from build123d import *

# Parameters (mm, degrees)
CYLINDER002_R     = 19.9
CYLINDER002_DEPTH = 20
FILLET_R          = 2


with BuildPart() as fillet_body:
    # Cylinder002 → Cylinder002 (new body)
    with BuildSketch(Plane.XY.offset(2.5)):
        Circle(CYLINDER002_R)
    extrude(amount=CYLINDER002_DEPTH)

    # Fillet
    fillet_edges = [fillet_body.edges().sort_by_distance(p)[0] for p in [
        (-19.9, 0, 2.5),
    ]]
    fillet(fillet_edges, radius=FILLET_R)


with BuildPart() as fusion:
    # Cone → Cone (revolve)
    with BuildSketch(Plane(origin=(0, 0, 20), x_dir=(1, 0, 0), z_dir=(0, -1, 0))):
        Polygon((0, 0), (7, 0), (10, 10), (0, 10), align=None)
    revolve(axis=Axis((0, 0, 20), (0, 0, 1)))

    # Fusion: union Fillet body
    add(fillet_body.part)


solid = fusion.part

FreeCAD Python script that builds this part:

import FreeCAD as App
import Part
import Sketcher
Q = App.Units.Quantity


def edges_at(feature, points):
    """Names of the edges that pass closest to the given points."""
    edges = feature.Shape.Edges
    near = lambda p: min(range(len(edges)), key=lambda i: edges[i].distToShape(Part.Vertex(*p))[0])
    return sorted({f"Edge{near(p) + 1}" for p in points})


def add_polygon(sketch, points):
    """Adds a closed chain of lines whose ends are joined by coincident constraints."""
    first, n = sketch.GeometryCount, len(points)
    for a, b in zip(points, points[1:] + points[:1]):
        sketch.addGeometry(Part.LineSegment(App.Vector(*a, 0), App.Vector(*b, 0)), False)
    for i in range(n):
        sketch.addConstraint(Sketcher.Constraint("Coincident", first + i, 2, first + (i + 1) % n, 1))

doc = App.newDocument("Part")
params = doc.addObject("Spreadsheet::Sheet", "Params")
for row, (alias, value) in enumerate([
    ("sketch1_diameter", "39.8 mm"),
    ("pad1_length", "20 mm"),
    ("fillet_radius", "2 mm"),
    ("sketch2_width", "7 mm"),
    ("sketch2_width2", "10 mm"),
    ("revolution_angle", "360 deg"),
], start=1):
    params.set(f"A{row}", alias)
    params.set(f"B{row}", "=" + value)
    params.setAlias(f"B{row}", alias)

body = doc.addObject("PartDesign::Body", "Body")

sketch1 = doc.addObject("Sketcher::SketchObject", "Sketch")
body.addObject(sketch1)
sketch1.AttachmentSupport = (doc.XY_Plane, [""])
sketch1.MapMode = "FlatFace"
sketch1.AttachmentOffset = App.Placement(App.Vector(0, 0, 2.5), App.Rotation())
sketch1.addGeometry(Part.Circle(App.Vector(0, 0, 0), App.Vector(0, 0, 1), 20), False)
sketch1.addConstraint([
    Sketcher.Constraint("Coincident", 0, 3, -1, 1),
    Sketcher.Constraint("Diameter", 0, Q("39.8 mm")),
])
sketch1.setExpression("Constraints[1]", "Params.sketch1_diameter")
pad1 = doc.addObject("PartDesign::Pad", "Pad")
body.addObject(pad1)
pad1.Profile = sketch1
pad1.setExpression("Length", "Params.pad1_length")
doc.recompute()

fillet = doc.addObject("PartDesign::Fillet", "Fillet")
body.addObject(fillet)
fillet.Base = (pad1, edges_at(pad1, [(-19.9, 0, 2.5)]))
fillet.setExpression("Radius", "Params.fillet_radius")
body2 = doc.addObject("PartDesign::Body", "Body001")

sketch2 = doc.addObject("Sketcher::SketchObject", "Sketch001")
body2.addObject(sketch2)
sketch2.AttachmentSupport = (doc.getObject("XZ_Plane001"), [""])
sketch2.MapMode = "FlatFace"
add_polygon(sketch2, [(0, 20), (7, 20), (10, 30), (0, 30)])
sketch2.addConstraint([
    Sketcher.Constraint("Horizontal", 0),
    Sketcher.Constraint("Horizontal", 2),
    Sketcher.Constraint("Vertical", 3),
    Sketcher.Constraint("PointOnObject", 2, 2, -2),
    Sketcher.Constraint("Equal", 2, 3),
    Sketcher.Constraint("DistanceX", 0, 1, 0, 2, Q("7 mm")),
    Sketcher.Constraint("DistanceX", 2, 2, 2, 1, Q("10 mm")),
    Sketcher.Constraint("DistanceY", -1, 1, 0, 2, Q("20 mm")),
])
sketch2.setExpression("Constraints[9]", "Params.sketch2_width")
sketch2.setExpression("Constraints[10]", "Params.sketch2_width2")
revolution = doc.addObject("PartDesign::Revolution", "Revolution")
body2.addObject(revolution)
revolution.Profile = sketch2
revolution.ReferenceAxis = (sketch2, ["V_Axis"])
revolution.setExpression("Angle", "Params.revolution_angle")
doc.recompute()

boolean = doc.addObject("PartDesign::Boolean", "Boolean")
body2.addObject(boolean)
boolean.Type = "Fuse"
boolean.addObjects([body])

doc.recompute()
